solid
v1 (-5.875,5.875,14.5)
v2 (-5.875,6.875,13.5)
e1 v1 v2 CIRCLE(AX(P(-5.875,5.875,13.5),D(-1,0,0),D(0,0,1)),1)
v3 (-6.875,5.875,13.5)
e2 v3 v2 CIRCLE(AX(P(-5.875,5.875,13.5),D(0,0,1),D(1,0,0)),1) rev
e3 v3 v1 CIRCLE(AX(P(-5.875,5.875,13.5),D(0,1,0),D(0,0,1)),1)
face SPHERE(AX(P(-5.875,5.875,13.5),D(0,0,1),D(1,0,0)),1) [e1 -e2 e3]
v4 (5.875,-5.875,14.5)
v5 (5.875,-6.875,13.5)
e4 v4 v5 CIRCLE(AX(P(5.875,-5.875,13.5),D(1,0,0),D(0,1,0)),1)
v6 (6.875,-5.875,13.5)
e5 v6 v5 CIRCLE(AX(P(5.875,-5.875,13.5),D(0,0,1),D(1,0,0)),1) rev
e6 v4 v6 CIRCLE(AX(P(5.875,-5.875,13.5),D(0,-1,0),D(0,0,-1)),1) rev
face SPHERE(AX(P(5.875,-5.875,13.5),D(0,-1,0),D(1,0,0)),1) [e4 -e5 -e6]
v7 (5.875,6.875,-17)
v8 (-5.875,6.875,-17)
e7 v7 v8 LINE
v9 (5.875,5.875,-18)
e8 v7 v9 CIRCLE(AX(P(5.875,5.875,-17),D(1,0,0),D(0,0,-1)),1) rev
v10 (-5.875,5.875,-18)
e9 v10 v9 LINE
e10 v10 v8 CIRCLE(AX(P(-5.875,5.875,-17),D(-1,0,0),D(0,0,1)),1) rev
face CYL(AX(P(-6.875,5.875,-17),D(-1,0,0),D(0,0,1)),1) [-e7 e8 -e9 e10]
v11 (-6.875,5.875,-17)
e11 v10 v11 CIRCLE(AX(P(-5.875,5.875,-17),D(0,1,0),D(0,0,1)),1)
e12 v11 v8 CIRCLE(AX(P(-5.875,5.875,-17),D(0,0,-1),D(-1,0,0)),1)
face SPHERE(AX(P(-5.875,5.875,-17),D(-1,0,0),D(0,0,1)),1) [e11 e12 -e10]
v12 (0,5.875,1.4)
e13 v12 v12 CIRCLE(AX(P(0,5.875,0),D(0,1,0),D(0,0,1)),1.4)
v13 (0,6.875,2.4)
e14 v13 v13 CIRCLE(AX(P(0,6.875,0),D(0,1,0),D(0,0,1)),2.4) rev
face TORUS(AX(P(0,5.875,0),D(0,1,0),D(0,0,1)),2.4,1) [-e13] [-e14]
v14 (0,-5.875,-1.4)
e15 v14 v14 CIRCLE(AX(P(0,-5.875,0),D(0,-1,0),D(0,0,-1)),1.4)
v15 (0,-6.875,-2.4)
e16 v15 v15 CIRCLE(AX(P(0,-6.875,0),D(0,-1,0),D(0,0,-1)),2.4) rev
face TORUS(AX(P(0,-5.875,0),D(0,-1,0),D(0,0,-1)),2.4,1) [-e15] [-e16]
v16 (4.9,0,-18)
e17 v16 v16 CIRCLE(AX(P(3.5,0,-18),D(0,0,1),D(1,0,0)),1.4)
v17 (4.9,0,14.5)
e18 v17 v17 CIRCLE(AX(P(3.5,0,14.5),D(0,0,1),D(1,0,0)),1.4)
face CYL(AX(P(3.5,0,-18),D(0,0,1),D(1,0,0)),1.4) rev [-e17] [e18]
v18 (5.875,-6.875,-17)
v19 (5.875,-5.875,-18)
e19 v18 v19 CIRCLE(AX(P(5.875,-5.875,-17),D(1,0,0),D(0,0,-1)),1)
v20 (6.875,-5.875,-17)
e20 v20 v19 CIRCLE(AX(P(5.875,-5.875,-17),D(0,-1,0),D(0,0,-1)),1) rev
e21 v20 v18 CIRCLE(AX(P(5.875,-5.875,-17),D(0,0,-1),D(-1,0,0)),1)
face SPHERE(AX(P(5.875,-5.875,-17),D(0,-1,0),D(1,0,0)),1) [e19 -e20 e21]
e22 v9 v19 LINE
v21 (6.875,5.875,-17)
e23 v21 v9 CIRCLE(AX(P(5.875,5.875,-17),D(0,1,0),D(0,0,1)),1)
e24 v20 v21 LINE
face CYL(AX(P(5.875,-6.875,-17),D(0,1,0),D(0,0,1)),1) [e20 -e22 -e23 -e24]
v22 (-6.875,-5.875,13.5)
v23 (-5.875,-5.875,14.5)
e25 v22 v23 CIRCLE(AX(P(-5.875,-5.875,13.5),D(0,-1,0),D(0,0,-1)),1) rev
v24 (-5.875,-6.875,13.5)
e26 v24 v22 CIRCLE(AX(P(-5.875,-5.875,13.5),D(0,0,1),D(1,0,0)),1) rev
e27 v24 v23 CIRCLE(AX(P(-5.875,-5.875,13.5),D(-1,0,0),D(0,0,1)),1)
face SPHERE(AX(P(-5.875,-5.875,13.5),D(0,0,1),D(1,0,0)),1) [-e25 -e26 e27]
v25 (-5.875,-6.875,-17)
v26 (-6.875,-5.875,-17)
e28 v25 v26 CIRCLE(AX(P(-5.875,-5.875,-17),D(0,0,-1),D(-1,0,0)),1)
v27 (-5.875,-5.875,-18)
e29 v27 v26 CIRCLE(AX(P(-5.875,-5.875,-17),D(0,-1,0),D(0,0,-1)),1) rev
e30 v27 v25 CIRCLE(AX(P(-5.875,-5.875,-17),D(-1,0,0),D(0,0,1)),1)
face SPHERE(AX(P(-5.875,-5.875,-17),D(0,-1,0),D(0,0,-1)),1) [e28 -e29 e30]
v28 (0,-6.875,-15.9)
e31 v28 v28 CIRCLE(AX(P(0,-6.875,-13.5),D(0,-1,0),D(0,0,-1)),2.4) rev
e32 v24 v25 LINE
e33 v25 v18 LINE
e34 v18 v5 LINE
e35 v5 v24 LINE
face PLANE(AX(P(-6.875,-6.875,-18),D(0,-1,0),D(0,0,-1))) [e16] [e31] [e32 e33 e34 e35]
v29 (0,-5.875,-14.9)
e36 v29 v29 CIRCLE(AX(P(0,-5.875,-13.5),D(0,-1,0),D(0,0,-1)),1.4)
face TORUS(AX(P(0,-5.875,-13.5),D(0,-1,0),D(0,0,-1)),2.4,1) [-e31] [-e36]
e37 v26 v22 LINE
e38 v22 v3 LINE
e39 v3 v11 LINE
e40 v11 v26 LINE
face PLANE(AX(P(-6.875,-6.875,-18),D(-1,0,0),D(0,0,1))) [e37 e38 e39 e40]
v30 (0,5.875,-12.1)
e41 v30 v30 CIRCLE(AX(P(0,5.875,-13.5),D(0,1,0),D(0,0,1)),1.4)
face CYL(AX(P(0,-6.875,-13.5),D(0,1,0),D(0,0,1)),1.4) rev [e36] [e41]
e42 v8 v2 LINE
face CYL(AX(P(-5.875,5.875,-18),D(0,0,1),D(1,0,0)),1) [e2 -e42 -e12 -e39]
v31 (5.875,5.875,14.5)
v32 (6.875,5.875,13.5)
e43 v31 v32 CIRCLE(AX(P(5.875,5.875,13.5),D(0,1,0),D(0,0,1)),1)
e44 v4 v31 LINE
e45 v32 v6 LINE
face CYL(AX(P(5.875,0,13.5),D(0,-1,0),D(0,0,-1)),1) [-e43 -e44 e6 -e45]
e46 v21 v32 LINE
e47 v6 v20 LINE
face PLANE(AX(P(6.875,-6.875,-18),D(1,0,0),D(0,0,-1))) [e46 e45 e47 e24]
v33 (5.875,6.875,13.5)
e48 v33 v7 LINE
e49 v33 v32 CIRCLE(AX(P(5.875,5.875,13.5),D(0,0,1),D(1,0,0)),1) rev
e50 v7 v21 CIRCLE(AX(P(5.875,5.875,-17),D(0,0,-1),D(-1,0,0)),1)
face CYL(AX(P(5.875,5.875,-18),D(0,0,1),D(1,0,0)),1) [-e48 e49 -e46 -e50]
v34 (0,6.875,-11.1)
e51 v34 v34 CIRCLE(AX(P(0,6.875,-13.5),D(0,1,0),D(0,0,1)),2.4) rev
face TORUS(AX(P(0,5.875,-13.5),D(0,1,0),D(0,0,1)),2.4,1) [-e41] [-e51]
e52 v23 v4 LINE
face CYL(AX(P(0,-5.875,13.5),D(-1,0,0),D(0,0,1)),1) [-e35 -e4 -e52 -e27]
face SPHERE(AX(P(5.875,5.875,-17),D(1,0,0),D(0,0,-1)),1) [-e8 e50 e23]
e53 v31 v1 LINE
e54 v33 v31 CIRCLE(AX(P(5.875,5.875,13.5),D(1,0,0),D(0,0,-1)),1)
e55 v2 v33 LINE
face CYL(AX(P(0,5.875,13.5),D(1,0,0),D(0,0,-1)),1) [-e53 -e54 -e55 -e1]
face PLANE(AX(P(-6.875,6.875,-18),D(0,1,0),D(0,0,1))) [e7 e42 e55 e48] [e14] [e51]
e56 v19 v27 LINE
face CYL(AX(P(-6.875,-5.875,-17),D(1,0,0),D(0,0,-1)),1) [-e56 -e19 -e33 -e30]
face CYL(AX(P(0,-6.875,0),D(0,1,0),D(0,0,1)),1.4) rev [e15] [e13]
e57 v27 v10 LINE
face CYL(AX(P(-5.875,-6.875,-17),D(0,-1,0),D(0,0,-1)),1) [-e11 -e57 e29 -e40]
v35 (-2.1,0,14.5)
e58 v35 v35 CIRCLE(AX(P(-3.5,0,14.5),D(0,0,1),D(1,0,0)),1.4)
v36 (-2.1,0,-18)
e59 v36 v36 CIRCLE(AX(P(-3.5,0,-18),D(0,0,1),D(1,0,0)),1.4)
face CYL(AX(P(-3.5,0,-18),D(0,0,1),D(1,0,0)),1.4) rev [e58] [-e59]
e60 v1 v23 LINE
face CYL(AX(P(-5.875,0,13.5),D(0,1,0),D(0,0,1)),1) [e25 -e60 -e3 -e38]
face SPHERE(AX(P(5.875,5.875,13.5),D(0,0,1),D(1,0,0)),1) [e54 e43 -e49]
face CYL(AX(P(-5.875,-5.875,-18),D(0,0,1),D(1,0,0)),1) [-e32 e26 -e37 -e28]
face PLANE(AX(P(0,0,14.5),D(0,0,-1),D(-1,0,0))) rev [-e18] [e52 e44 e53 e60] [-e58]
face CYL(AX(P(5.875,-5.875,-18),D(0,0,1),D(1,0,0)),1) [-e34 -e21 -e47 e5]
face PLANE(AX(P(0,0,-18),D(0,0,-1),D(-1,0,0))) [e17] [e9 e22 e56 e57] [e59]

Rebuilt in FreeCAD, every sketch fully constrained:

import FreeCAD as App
import Part
import Sketcher
from FreeCAD import Vector
Q = App.Units.Quantity


def edges_at(feature, points):
    """Names of the edges that pass closest to the given points."""
    edges = feature.Shape.Edges
    near = lambda p: min(range(len(edges)), key=lambda i: edges[i].distToShape(Part.Vertex(*p))[0])
    return sorted({f"Edge{near(p) + 1}" for p in points})


def add_polygon(sketch, points):
    """Adds a closed chain of lines whose ends are joined by coincident constraints."""
    first, n = sketch.GeometryCount, len(points)
    for a, b in zip(points, points[1:] + points[:1]):
        sketch.addGeometry(Part.LineSegment(App.Vector(*a, 0), App.Vector(*b, 0)), False)
    for i in range(n):
        sketch.addConstraint(Sketcher.Constraint("Coincident", first + i, 2, first + (i + 1) % n, 1))

doc = App.newDocument("Part")
params = doc.addObject("Spreadsheet::Sheet", "Params")
for row, (alias, value) in enumerate([
    ("sketch1_width", "13.75 mm"),
    ("pad1_length", "14.5 mm"),
    ("pad1_length2", "18 mm"),
    ("sketch2_diameter", "2.8 mm"),
    ("fillet_radius", "1 mm"),
    ("fillet2_radius", "1 mm"),
    ("sketch3_diameter", "2.8 mm"),
], start=1):
    params.set(f"A{row}", alias)
    params.set(f"B{row}", "=" + value)
    params.setAlias(f"B{row}", alias)

body = doc.addObject("PartDesign::Body", "Body")

sketch1 = body.newObject("Sketcher::SketchObject", "Sketch")
sketch1.AttachmentSupport = (doc.getObject("XY_Plane"), [""])
sketch1.MapMode = "FlatFace"
add_polygon(sketch1, [(-6.875, 6.875), (-6.875, -6.875), (6.875, -6.875), (6.875, 6.875)])
sketch1.addConstraint([
    Sketcher.Constraint("Vertical", 0),
    Sketcher.Constraint("Horizontal", 1),
    Sketcher.Constraint("Vertical", 2),
    Sketcher.Constraint("Horizontal", 3),
    Sketcher.Constraint("Symmetric", 0, 2, 2, 2, -1, 1),
    Sketcher.Constraint("Equal", 3, 0),
    Sketcher.Constraint("DistanceX", 1, 1, 1, 2, Q("13.75 mm")),
])
sketch1.setExpression("Constraints[10]", "Params.sketch1_width")
pad1 = body.newObject("PartDesign::Pad", "Pad")
pad1.Profile = sketch1
pad1.Type = "TwoLengths"
pad1.setExpression("Length", "Params.pad1_length")
pad1.setExpression("Length2", "Params.pad1_length2")

sketch2 = body.newObject("Sketcher::SketchObject", "Sketch001")
sketch2.AttachmentSupport = (doc.getObject("XZ_Plane"), [""])
sketch2.MapMode = "FlatFace"
sketch2.addGeometry([
    Part.Circle(Vector(0, 0, 0), Vector(0, 0, 1), 1.4),
    Part.Circle(Vector(0, -13.5, 0), Vector(0, 0, 1), 1.4),
], False)
sketch2.addConstraint([
    Sketcher.Constraint("Coincident", 0, 3, -1, 1),
    Sketcher.Constraint("Equal", 0, 1),
    Sketcher.Constraint("PointOnObject", 1, 3, -2),
    Sketcher.Constraint("Diameter", 0, Q("2.8 mm")),
    Sketcher.Constraint("DistanceY", 1, 3, -1, 1, Q("13.5 mm")),
])
sketch2.setExpression("Constraints[3]", "Params.sketch2_diameter")
pocket1 = body.newObject("PartDesign::Pocket", "Pocket")
pocket1.Profile = sketch2
pocket1.Type = "ThroughAll"
pocket1.Midplane = True
doc.recompute()

fillet = body.newObject("PartDesign::Fillet", "Fillet")
fillet.Base = (pocket1, edges_at(pocket1, [
    (6.875, 0, 14.5),
    (-6.875, 0, -18),
    (0, 6.875, 14.5),
    (-6.875, 0, 14.5),
    (0, -6.875, 14.5),
    (0, -6.875, -18),
    (6.875, 0, -18),
    (6.875, -6.875, -1.75),
    (-6.875, -6.875, -1.75),
    (-6.875, 6.875, -1.75),
    (6.875, 6.875, -1.75),
    (0, 6.875, -18),
]))
fillet.setExpression("Radius", "Params.fillet_radius")
doc.recompute()

fillet2 = body.newObject("PartDesign::Fillet", "Fillet001")
fillet2.Base = (fillet, edges_at(fillet, [
    (0, -6.875, -1.4),
    (0, 6.875, -1.4),
    (0, -6.875, -14.9),
    (0, 6.875, -14.9),
]))
fillet2.setExpression("Radius", "Params.fillet2_radius")

sketch3 = body.newObject("Sketcher::SketchObject", "Sketch002")
sketch3.AttachmentSupport = (doc.getObject("XY_Plane"), [""])
sketch3.MapMode = "FlatFace"
sketch3.AttachmentOffset = App.Placement(Vector(0, 0, 14.5), App.Rotation())
sketch3.addGeometry([
    Part.Circle(Vector(-3.5, 0, 0), Vector(0, 0, 1), 1.4),
    Part.Circle(Vector(3.5, 0, 0), Vector(0, 0, 1), 1.4),
], False)
sketch3.addConstraint([
    Sketcher.Constraint("Equal", 0, 1),
    Sketcher.Constraint("Symmetric", 0, 3, 1, 3, -1, 1),
    Sketcher.Constraint("PointOnObject", 0, 3, -1),
    Sketcher.Constraint("Diameter", 0, Q("2.8 mm")),
    Sketcher.Constraint("DistanceX", 0, 3, 1, 3, Q("7 mm")),
])
sketch3.setExpression("Constraints[3]", "Params.sketch3_diameter")
pocket2 = body.newObject("PartDesign::Pocket", "Pocket001")
pocket2.Profile = sketch3
pocket2.Type = "ThroughAll"

doc.recompute()
